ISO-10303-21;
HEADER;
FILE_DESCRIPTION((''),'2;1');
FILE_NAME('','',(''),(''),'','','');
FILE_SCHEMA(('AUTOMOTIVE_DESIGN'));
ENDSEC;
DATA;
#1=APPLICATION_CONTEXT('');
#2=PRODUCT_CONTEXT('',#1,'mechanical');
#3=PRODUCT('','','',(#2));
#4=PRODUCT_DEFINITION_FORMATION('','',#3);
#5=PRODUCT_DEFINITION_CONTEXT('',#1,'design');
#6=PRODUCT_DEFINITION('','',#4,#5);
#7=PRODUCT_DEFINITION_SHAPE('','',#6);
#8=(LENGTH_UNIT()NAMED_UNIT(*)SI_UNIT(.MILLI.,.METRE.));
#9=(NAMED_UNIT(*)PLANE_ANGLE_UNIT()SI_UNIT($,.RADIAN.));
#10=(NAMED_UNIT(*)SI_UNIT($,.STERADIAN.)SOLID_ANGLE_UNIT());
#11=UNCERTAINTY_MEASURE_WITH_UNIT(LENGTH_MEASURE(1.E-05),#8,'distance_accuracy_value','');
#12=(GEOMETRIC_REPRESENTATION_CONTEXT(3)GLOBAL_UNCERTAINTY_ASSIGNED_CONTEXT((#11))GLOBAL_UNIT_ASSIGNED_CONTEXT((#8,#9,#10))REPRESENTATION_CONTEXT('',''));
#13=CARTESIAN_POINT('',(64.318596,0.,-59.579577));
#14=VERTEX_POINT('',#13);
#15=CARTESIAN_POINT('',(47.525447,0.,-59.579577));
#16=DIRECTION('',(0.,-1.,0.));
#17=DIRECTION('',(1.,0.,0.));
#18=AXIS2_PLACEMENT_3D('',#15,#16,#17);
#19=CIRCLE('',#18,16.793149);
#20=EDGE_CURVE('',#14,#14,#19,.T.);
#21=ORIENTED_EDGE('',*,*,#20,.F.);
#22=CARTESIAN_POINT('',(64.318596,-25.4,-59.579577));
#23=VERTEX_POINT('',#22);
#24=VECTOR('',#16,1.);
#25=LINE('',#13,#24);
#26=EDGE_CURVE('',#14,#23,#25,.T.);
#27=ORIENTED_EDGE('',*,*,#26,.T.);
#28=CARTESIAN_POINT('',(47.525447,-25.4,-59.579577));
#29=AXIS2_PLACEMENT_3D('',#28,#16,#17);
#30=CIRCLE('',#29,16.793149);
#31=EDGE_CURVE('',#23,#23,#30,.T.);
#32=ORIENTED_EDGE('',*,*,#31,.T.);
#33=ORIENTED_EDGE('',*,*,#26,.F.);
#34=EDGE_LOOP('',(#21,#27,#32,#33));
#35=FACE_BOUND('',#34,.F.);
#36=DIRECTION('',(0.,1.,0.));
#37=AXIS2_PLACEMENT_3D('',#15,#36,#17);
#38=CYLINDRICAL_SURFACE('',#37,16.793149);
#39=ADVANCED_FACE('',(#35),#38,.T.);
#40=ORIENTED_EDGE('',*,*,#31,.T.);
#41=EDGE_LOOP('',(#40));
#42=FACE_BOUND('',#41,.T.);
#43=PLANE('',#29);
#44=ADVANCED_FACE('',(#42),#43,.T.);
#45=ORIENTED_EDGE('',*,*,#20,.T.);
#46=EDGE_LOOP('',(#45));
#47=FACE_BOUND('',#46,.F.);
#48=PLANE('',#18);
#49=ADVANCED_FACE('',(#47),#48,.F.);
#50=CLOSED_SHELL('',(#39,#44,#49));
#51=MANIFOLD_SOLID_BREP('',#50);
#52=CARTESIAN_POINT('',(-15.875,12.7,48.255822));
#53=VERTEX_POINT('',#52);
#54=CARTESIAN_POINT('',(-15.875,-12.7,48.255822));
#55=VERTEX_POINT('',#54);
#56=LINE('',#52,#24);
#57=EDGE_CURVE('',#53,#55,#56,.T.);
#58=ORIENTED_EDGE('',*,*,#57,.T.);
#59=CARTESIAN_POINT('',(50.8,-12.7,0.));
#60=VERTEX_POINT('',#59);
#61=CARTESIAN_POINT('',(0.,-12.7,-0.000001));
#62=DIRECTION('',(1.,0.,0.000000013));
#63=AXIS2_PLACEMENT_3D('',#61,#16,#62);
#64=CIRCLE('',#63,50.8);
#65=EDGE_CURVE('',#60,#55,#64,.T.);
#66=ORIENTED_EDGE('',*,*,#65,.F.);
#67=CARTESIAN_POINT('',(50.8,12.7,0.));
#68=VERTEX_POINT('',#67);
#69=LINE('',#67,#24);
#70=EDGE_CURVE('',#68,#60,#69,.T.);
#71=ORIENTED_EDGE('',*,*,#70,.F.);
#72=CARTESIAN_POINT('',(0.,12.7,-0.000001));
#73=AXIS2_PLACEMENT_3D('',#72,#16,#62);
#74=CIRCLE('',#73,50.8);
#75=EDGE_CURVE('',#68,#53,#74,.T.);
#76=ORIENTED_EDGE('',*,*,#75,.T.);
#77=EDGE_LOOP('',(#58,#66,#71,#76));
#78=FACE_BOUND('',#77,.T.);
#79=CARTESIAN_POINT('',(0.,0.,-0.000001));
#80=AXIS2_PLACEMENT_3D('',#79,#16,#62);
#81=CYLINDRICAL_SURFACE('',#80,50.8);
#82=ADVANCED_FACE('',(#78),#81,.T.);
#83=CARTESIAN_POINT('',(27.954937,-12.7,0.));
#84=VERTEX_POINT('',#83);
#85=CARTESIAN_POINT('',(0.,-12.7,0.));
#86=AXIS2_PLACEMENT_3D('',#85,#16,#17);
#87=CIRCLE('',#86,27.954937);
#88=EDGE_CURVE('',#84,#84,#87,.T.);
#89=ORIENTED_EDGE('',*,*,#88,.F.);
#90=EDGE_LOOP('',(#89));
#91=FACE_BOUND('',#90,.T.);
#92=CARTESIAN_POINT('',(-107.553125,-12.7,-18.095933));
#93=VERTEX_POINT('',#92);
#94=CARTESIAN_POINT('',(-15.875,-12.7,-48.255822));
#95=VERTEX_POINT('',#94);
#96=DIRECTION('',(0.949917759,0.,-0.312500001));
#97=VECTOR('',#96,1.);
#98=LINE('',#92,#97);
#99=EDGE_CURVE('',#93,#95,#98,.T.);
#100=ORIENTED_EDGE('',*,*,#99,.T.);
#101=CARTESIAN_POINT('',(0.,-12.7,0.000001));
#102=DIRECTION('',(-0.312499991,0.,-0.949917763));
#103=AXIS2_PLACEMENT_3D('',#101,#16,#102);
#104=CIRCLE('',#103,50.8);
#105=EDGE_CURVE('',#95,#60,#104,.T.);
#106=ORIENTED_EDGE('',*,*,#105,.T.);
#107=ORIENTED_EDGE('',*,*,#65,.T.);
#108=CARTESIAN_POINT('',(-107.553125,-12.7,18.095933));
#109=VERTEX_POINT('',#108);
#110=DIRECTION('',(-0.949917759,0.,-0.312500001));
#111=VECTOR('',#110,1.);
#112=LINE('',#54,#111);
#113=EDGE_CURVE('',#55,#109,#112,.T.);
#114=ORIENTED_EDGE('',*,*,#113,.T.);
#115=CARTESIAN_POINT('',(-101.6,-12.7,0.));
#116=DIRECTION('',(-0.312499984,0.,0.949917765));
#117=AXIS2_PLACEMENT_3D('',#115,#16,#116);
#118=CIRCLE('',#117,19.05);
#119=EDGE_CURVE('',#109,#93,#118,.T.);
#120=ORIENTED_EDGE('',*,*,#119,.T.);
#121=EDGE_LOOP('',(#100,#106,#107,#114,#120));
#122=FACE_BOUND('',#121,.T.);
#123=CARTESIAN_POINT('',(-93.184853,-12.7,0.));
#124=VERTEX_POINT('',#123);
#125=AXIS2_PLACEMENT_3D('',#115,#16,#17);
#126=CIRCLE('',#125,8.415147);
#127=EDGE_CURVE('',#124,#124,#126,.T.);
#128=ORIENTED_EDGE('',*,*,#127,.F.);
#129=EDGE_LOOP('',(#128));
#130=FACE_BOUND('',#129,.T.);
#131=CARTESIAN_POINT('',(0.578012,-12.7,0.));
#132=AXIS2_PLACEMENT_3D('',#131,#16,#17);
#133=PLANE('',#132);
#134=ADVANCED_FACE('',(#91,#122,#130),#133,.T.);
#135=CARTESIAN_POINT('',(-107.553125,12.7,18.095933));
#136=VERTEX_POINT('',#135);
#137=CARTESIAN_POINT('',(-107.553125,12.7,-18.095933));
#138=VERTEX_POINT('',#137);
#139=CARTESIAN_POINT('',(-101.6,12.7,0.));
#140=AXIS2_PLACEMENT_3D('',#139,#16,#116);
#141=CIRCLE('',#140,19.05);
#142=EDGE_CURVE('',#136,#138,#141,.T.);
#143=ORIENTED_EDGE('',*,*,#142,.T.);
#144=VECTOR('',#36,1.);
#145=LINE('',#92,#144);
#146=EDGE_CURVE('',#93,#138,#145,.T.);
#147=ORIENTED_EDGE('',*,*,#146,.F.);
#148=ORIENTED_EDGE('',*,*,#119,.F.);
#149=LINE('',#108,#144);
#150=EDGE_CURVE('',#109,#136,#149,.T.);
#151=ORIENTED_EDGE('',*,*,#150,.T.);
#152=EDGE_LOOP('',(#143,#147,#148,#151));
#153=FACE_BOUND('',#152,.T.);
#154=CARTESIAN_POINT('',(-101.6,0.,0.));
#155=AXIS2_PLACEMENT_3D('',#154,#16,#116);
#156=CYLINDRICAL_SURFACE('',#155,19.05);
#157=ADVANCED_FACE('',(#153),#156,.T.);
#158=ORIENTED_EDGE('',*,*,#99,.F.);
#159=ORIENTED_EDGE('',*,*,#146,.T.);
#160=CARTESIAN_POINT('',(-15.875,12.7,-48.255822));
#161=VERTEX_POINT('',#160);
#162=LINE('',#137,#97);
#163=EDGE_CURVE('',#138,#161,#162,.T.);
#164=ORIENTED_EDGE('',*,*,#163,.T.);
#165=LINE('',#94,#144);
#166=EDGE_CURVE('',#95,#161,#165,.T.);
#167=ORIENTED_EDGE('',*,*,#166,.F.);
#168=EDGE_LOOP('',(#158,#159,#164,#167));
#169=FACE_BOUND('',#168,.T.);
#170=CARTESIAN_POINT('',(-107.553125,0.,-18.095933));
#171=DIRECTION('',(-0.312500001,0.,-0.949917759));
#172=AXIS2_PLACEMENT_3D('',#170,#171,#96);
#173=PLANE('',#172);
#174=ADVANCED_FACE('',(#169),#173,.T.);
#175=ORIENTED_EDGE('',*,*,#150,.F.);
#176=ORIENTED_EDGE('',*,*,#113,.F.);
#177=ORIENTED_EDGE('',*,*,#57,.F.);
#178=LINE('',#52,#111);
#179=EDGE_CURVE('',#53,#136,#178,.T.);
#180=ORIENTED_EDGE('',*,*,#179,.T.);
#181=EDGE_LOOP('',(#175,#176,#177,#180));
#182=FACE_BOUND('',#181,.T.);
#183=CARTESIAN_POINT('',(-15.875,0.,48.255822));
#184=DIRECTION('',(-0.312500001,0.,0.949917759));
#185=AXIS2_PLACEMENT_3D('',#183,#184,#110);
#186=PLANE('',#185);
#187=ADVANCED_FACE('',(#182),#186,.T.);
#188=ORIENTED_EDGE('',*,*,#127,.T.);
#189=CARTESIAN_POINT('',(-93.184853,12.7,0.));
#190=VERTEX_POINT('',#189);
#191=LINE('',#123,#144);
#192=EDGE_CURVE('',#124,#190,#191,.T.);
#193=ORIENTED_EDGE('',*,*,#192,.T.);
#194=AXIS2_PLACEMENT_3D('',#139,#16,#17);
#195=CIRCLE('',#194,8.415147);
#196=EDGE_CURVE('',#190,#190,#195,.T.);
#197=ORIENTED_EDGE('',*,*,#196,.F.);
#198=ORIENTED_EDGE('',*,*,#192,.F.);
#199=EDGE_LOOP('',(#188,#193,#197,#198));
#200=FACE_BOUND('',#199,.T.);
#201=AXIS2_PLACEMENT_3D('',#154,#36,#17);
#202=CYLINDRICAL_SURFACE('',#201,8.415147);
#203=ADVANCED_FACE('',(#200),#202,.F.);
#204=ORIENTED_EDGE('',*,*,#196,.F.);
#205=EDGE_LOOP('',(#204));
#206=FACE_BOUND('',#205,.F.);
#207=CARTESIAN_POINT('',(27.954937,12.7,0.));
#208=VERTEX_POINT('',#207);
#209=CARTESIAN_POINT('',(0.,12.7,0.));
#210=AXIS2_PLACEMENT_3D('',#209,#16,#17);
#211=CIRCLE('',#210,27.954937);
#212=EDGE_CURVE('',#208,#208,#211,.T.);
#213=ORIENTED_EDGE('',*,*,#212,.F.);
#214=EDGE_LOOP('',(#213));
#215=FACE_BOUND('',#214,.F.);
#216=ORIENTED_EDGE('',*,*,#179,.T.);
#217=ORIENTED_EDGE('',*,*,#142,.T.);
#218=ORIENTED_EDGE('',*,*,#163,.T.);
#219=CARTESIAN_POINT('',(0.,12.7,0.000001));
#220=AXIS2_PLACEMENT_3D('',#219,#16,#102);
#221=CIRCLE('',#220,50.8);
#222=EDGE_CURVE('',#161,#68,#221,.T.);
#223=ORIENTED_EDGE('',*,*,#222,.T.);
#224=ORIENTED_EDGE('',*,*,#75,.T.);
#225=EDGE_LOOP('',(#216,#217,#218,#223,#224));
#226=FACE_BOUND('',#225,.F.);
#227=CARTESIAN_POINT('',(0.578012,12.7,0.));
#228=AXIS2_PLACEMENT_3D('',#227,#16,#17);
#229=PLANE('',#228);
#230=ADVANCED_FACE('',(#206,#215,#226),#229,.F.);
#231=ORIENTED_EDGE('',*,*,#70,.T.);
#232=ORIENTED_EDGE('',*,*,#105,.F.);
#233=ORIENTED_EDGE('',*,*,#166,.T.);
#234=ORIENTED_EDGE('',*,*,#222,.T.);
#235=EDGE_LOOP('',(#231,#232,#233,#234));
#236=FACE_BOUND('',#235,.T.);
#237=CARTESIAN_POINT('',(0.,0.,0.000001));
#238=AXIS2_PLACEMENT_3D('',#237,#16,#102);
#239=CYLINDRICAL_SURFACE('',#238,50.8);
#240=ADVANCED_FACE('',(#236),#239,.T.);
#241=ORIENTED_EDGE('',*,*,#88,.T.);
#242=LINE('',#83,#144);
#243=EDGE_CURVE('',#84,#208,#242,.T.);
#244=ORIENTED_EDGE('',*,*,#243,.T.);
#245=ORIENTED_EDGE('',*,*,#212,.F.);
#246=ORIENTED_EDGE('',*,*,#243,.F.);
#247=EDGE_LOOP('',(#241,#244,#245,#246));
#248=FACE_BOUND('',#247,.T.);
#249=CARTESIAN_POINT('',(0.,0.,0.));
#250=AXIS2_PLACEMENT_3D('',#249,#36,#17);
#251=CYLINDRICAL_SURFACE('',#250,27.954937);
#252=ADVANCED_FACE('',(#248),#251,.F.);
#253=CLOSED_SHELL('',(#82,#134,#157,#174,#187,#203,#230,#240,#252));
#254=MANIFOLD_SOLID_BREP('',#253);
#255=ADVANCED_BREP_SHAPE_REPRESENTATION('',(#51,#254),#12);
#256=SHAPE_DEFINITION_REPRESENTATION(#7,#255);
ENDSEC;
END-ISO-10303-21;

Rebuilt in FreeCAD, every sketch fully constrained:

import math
import FreeCAD as App
import Part
import Sketcher
Q = App.Units.Quantity

doc = App.newDocument("Part")
params = doc.addObject("Spreadsheet::Sheet", "Params")
for row, (alias, value) in enumerate([
    ("pad1_length", "1 in"),
    ("sketch2_radius", "2 in"),
    ("sketch2_radius2", "0.75 in"),
    ("pad2_length", "1 in"),
], start=1):
    params.set(f"A{row}", alias)
    params.set(f"B{row}", "=" + value)
    params.setAlias(f"B{row}", alias)

body = doc.addObject("PartDesign::Body", "Body")

sketch1 = body.newObject("Sketcher::SketchObject", "Sketch")
sketch1.AttachmentSupport = (doc.getObject("XZ_Plane"), [""])
sketch1.MapMode = "FlatFace"
sketch1.addGeometry(Part.Circle(App.Vector(48, -60, 0), App.Vector(0, 0, 1), 17), False)
sketch1.addConstraint([
    Sketcher.Constraint("Diameter", 0, 33.586298),
    Sketcher.Constraint("DistanceX", -1, 1, 0, 3, 47.525447),
    Sketcher.Constraint("DistanceY", 0, 3, -1, 1, 59.579577),
])
pad1 = body.newObject("PartDesign::Pad", "Pad")
pad1.Profile = sketch1
pad1.setExpression("Length", "Params.pad1_length")
body2 = doc.addObject("PartDesign::Body", "Body001")

sketch2 = body2.newObject("Sketcher::SketchObject", "Sketch001")
sketch2.AttachmentSupport = (doc.getObject("XZ_Plane001"), [""])
sketch2.MapMode = "FlatFace"
sketch2.addGeometry([
    Part.ArcOfCircle(Part.Circle(App.Vector(0, 0, 0), App.Vector(0, 0, 1), 51), math.radians(-108), math.radians(0)),
    Part.ArcOfCircle(Part.Circle(App.Vector(0, 0, 0), App.Vector(0, 0, 1), 51), math.radians(0), math.radians(108)),
    Part.LineSegment(App.Vector(-16, 48, 0), App.Vector(-108, 18, 0)),
    Part.ArcOfCircle(Part.Circle(App.Vector(-102, 0, 0), App.Vector(0, 0, 1), 19), math.radians(108), math.radians(252)),
    Part.LineSegment(App.Vector(-108, -18, 0), App.Vector(-16, -48, 0)),
    Part.Circle(App.Vector(-102, 0, 0), App.Vector(0, 0, 1), 8),
    Part.Circle(App.Vector(0, 0, 0), App.Vector(0, 0, 1), 28),
], False)
sketch2.addConstraint([
    Sketcher.Constraint("Tangent", 0, 2, 1, 1),
    Sketcher.Constraint("Tangent", 1, 2, 2, 1),
    Sketcher.Constraint("Tangent", 2, 2, 3, 1),
    Sketcher.Constraint("Tangent", 3, 2, 4, 1),
    Sketcher.Constraint("Tangent", 4, 2, 0, 1),
    Sketcher.Constraint("Coincident", 0, 3, -1, 1),
    Sketcher.Constraint("Coincident", 6, 3, -1, 1),
    Sketcher.Constraint("Coincident", 5, 3, 3, 3),
    Sketcher.Constraint("Equal", 0, 1),
    Sketcher.Constraint("PointOnObject", 3, 3, -1),
    Sketcher.Constraint("PointOnObject", 0, 2, -1),
    Sketcher.Constraint("Radius", 0, Q("2 in")),
    Sketcher.Constraint("Radius", 3, Q("0.75 in")),
    Sketcher.Constraint("DistanceX", 3, 3, -1, 1, Q("4 in")),
    Sketcher.Constraint("Diameter", 5, 16.830294),
    Sketcher.Constraint("Diameter", 6, 55.909874),
])
sketch2.setExpression("Constraints[11]", "Params.sketch2_radius")
sketch2.setExpression("Constraints[12]", "Params.sketch2_radius2")
pad2 = body2.newObject("PartDesign::Pad", "Pad001")
pad2.Profile = sketch2
pad2.setExpression("Length", "Params.pad2_length")
pad2.Midplane = True

doc.recompute()
